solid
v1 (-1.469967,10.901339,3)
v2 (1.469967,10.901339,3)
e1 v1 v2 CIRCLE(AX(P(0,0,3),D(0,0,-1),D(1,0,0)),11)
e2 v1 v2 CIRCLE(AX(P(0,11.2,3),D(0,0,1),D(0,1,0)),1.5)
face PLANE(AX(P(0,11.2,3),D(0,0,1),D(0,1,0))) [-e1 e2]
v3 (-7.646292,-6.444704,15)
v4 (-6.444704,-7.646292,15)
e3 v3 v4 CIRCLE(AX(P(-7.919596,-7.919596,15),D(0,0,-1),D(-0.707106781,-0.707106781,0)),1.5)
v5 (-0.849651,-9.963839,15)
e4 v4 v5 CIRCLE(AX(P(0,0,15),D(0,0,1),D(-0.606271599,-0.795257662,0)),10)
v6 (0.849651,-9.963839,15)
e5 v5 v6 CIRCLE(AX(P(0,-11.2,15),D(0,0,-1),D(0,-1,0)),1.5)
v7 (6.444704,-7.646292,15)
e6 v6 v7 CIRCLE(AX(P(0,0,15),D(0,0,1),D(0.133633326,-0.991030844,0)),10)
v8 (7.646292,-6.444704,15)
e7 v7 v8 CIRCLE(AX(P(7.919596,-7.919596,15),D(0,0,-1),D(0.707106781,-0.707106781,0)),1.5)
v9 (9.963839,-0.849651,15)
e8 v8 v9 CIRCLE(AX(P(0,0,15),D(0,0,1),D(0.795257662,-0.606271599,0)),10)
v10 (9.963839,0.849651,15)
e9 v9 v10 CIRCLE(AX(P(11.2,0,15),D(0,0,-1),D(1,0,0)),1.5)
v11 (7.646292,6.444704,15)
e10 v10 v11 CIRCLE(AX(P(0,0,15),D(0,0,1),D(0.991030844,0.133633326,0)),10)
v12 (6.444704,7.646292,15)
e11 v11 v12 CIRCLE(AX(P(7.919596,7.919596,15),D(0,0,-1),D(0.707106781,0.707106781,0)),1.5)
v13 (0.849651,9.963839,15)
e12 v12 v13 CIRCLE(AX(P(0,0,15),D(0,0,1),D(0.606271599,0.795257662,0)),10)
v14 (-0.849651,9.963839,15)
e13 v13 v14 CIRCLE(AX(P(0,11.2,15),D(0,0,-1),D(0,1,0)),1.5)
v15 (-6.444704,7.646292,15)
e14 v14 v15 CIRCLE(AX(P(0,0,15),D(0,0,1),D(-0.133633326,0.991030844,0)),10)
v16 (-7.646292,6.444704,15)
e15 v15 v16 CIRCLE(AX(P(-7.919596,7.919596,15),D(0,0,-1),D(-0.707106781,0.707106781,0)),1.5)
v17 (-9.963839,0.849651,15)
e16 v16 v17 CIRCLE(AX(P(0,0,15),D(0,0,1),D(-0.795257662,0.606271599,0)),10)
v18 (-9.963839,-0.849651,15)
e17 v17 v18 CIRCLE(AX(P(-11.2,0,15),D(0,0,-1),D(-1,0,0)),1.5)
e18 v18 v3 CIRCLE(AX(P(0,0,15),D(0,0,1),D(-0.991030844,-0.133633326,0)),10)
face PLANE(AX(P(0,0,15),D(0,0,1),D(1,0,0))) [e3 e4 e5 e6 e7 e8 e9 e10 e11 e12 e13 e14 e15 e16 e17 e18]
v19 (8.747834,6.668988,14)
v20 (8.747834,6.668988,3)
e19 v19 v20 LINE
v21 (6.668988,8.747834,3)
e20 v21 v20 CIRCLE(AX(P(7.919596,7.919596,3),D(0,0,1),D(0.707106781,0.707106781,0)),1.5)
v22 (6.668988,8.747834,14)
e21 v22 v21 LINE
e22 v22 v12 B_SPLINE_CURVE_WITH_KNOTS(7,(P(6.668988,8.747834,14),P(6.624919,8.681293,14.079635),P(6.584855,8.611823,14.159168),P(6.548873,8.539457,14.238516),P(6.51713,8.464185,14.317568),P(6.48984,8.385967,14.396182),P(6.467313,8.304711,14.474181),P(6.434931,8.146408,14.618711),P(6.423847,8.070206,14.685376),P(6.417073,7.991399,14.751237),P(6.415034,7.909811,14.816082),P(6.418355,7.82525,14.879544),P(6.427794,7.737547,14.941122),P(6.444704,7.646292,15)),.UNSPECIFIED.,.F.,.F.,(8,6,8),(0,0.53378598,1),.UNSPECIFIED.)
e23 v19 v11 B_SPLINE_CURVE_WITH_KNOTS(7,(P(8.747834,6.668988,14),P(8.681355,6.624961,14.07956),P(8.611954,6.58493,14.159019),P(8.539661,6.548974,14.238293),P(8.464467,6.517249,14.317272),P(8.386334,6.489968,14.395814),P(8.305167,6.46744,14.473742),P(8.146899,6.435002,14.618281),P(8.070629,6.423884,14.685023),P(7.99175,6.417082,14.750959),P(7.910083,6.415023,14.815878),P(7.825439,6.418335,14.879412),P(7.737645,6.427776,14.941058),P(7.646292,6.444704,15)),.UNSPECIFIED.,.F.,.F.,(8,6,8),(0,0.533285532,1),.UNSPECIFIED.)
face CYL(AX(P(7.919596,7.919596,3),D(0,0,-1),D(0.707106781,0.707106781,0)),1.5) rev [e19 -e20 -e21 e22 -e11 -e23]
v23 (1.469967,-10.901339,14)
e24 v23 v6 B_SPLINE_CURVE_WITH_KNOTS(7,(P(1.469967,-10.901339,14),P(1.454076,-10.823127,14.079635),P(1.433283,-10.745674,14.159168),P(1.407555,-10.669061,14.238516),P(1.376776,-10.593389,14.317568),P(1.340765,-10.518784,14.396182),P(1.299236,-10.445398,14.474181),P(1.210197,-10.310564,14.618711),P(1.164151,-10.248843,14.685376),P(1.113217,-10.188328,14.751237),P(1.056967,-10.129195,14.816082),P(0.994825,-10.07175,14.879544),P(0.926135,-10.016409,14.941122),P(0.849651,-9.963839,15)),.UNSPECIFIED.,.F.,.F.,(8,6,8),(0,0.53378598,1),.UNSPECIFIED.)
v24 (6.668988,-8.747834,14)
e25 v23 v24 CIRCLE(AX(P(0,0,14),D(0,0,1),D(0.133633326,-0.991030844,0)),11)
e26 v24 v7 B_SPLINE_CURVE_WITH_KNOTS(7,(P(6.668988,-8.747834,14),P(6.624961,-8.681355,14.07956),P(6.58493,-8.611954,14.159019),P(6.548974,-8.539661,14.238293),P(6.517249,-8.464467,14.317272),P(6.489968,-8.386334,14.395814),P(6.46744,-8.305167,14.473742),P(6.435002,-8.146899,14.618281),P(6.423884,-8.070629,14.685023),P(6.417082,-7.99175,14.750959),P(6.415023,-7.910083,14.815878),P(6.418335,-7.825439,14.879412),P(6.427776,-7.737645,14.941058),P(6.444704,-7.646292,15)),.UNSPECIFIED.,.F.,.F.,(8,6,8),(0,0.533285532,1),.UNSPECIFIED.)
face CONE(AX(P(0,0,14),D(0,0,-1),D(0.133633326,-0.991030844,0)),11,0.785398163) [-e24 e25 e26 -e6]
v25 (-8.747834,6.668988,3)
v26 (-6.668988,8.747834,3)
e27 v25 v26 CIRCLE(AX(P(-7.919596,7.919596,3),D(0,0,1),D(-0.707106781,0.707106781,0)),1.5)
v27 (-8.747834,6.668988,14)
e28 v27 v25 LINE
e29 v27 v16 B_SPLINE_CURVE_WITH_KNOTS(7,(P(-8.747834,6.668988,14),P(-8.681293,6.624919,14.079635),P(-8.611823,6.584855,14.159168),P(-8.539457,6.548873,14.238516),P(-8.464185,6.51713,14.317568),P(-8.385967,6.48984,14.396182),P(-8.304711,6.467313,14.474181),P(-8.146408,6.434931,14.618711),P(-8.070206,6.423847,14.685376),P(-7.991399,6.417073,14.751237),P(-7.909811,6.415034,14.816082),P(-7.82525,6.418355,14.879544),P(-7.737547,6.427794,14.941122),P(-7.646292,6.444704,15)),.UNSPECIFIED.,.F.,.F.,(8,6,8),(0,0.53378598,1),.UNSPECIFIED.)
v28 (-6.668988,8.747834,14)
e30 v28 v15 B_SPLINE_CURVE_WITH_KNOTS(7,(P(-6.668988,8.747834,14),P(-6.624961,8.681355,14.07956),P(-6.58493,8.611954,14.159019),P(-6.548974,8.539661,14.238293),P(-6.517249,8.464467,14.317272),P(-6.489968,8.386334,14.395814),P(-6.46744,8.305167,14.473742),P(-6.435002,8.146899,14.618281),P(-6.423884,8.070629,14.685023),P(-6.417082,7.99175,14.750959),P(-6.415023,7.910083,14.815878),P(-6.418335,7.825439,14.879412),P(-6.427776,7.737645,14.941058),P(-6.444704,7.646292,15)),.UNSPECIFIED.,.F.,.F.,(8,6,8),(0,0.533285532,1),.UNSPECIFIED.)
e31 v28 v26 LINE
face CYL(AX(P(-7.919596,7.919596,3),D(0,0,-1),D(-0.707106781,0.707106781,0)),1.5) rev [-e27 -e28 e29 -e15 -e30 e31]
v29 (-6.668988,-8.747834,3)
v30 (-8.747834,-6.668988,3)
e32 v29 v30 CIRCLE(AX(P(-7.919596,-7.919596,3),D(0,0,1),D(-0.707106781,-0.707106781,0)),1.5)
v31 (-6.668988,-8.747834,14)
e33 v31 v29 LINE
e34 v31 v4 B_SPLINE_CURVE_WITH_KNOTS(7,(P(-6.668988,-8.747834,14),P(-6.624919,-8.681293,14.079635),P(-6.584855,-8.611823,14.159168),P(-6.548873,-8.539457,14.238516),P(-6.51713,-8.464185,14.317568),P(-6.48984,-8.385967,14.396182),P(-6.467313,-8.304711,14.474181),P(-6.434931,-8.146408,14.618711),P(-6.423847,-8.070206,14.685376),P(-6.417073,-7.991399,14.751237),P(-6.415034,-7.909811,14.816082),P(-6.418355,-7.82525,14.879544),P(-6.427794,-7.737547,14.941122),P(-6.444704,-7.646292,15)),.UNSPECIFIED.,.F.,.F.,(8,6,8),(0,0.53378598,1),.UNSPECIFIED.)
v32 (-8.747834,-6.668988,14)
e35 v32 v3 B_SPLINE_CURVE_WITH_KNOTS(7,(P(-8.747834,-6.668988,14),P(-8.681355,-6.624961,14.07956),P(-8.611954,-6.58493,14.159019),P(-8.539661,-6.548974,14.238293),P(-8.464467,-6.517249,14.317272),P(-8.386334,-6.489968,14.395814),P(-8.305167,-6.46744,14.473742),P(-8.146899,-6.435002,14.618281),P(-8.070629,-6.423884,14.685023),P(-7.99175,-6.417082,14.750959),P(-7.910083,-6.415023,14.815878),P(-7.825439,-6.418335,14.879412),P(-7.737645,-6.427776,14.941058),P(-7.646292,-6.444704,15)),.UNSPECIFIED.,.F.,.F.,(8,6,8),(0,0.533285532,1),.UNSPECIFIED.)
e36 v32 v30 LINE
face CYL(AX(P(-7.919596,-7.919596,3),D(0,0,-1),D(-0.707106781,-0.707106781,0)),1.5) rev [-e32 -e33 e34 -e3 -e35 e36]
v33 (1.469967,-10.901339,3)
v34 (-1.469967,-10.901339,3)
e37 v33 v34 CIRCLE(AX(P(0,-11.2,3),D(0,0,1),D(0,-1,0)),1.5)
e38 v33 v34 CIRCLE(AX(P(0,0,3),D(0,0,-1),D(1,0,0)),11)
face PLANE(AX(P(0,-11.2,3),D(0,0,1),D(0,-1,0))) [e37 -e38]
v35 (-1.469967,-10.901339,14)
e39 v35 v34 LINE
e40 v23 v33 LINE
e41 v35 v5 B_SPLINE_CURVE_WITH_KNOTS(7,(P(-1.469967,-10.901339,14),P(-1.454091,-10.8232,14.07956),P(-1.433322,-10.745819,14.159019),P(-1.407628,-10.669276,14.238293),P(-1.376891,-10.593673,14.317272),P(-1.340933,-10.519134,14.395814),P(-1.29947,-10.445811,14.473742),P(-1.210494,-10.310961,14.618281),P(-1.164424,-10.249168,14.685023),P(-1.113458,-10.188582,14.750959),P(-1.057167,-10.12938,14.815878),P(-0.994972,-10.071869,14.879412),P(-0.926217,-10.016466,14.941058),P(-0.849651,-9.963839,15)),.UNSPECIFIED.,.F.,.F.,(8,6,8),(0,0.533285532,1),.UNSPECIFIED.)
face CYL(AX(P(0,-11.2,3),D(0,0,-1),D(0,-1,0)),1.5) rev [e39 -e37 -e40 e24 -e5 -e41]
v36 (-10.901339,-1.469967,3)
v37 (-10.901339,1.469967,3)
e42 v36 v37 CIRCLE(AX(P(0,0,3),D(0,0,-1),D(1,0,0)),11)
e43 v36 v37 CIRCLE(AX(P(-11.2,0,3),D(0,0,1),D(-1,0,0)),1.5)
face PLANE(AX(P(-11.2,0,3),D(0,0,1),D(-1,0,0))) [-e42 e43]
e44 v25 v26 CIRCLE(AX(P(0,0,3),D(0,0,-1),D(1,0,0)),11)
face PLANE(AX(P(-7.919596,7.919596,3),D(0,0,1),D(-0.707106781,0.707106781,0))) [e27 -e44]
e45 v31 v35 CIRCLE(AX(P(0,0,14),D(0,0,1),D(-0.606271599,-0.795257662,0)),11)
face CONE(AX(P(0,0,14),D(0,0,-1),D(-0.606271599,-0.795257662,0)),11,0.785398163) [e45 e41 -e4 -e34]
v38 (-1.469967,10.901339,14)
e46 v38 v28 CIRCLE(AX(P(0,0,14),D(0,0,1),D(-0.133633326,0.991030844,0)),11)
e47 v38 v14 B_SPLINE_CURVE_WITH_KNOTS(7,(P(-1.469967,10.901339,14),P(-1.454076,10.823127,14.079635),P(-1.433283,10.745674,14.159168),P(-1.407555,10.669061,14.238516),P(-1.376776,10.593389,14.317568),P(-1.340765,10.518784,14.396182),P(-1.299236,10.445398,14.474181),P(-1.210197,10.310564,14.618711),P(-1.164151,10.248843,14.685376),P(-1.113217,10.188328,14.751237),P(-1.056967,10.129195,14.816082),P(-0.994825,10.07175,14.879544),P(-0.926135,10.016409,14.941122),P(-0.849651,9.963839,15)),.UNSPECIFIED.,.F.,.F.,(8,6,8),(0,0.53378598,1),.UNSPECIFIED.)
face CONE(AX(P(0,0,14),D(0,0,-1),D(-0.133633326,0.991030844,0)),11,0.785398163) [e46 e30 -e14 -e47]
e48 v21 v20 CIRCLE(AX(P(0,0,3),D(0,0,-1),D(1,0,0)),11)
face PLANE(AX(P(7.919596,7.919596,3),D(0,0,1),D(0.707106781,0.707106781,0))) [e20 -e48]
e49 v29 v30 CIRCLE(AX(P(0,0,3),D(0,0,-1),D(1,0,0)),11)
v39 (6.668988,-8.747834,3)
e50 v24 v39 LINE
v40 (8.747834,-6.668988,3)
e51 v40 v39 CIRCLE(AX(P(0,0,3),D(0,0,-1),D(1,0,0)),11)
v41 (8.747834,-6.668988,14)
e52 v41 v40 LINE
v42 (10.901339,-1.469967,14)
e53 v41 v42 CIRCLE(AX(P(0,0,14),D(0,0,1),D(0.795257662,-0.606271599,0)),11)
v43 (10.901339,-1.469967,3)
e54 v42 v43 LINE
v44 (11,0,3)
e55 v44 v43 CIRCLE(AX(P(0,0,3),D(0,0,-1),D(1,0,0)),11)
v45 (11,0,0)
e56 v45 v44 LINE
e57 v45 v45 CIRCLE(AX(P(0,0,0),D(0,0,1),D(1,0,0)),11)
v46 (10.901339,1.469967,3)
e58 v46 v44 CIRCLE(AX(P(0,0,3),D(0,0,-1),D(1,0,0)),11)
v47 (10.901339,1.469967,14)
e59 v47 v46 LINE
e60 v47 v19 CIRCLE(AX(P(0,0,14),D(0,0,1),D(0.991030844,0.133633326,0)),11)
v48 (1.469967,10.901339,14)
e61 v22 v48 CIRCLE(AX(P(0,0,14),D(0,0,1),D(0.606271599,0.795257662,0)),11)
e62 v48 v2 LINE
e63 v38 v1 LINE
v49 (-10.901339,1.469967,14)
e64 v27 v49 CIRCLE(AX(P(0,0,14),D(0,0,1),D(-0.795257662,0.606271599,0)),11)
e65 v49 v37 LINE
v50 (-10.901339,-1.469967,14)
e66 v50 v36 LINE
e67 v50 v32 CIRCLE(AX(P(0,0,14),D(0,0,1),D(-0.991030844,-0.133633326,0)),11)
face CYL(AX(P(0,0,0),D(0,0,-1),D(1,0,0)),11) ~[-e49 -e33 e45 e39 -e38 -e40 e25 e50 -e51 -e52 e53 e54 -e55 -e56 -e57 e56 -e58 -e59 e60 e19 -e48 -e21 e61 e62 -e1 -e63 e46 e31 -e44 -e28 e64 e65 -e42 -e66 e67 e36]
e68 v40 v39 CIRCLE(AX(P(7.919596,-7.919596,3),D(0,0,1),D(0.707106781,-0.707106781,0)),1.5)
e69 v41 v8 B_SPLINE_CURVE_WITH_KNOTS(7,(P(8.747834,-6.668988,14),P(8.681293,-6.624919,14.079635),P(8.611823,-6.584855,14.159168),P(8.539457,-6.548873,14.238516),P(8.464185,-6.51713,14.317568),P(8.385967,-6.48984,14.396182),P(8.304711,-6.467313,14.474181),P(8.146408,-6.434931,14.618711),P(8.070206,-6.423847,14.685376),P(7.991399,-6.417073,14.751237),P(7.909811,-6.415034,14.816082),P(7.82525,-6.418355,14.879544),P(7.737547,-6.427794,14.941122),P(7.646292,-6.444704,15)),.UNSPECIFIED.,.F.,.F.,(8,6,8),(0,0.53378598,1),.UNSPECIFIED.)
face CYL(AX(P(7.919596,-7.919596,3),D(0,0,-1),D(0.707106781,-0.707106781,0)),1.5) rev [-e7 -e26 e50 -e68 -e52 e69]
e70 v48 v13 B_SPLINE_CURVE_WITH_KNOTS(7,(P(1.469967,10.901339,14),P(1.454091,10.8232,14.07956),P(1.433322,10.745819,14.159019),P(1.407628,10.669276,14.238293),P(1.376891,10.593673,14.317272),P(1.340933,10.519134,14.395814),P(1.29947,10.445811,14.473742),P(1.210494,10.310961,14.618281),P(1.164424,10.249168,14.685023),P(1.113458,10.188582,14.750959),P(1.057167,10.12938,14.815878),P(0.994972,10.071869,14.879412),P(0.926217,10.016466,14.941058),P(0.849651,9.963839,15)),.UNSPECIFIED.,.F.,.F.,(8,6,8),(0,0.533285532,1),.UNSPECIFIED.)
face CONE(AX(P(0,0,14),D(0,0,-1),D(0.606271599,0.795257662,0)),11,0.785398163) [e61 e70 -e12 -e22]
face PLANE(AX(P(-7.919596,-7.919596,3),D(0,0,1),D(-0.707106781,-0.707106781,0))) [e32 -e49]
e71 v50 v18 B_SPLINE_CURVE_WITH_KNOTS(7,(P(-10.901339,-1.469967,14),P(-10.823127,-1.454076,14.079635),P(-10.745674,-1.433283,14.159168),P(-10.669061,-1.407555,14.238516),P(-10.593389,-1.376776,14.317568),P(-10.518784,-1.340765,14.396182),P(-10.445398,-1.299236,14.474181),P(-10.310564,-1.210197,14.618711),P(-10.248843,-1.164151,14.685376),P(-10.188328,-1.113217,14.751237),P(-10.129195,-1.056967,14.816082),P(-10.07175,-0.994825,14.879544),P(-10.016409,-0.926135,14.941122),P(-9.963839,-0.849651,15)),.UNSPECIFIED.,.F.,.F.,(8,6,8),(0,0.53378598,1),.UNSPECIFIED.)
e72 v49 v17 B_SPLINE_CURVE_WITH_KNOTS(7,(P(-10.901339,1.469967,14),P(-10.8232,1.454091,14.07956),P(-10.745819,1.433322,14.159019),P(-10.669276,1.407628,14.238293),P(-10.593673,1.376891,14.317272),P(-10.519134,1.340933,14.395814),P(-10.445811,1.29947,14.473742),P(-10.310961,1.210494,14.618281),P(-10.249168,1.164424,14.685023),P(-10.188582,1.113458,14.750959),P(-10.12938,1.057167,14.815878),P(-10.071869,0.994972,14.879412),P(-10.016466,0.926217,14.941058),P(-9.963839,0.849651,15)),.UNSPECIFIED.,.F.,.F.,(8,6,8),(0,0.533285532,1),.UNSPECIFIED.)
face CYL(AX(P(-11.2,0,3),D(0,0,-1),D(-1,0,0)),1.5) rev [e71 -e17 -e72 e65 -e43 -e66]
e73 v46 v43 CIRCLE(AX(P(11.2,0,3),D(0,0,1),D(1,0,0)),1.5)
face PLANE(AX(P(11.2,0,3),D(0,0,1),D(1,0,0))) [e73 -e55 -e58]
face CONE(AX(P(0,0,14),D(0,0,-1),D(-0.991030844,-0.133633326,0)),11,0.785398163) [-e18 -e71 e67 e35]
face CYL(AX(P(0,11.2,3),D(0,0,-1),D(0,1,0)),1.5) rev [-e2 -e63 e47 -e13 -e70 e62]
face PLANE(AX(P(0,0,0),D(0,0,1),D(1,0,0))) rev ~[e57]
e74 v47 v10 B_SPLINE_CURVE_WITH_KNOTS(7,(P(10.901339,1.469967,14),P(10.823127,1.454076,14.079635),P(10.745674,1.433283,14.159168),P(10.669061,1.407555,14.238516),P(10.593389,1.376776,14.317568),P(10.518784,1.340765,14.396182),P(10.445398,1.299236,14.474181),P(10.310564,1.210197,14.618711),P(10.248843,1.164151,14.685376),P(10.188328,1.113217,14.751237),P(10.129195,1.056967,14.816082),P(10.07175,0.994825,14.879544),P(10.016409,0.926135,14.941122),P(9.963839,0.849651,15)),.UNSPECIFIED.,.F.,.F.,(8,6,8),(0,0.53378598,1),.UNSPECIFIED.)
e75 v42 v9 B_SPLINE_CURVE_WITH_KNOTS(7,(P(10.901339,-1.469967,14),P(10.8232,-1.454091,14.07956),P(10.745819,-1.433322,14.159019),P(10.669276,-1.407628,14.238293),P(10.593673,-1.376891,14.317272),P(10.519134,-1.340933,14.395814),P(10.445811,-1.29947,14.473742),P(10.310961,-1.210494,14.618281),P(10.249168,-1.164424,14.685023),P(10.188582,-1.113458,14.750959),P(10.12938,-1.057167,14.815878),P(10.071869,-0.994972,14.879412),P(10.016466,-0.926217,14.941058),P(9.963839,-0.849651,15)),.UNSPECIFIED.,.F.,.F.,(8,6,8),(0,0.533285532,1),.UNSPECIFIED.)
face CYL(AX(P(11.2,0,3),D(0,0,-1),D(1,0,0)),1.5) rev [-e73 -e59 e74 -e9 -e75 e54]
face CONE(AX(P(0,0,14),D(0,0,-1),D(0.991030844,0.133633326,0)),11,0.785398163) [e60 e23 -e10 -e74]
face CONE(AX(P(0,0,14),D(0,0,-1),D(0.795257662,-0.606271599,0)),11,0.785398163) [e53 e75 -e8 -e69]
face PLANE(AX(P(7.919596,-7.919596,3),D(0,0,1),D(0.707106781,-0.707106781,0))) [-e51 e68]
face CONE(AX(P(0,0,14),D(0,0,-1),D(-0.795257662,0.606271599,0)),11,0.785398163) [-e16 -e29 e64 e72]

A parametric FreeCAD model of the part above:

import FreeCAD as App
import Part
import Sketcher
from FreeCAD import Vector
Q = App.Units.Quantity


def edges_at(feature, points):
    """Names of the edges that pass closest to the given points."""
    edges = feature.Shape.Edges
    near = lambda p: min(range(len(edges)), key=lambda i: edges[i].distToShape(Part.Vertex(*p))[0])
    return sorted({f"Edge{near(p) + 1}" for p in points})

doc = App.newDocument("Part")
body = doc.addObject("PartDesign::Body", "Body")

# Sketch on XY plane
sketch1 = body.newObject("Sketcher::SketchObject", "Sketch")
sketch1.AttachmentSupport = (doc.getObject("XY_Plane"), [""])
sketch1.MapMode = "FlatFace"
sketch1.AttachmentOffset = App.Placement(Vector(0, 0, 3), App.Rotation())
sketch1.addGeometry(Part.Circle(Vector(11.2, 0, 0), Vector(0, 0, 1), 1.5), False)
sketch1.addConstraint([
    Sketcher.Constraint("PointOnObject", 0, 3, -1),
    Sketcher.Constraint("Diameter", 0, Q("3 mm")),
    Sketcher.Constraint("DistanceX", -1, 1, 0, 3, Q("11.2 mm")),
])
pad1 = body.newObject("PartDesign::Pad", "Pad")
pad1.Profile = sketch1
pad1.Length = 20
body2 = doc.addObject("PartDesign::Body", "Body001")
body2.AllowCompound = True
doc.recompute()

body2.BaseFeature = body
doc.recompute()

body3 = doc.addObject("PartDesign::Body", "Body002")
body3.BaseFeature = body
body3.Placement = App.Placement(Vector(0, 0, 0), App.Rotation(Vector(0, 0, 1), 45))
boolean = body2.newObject("PartDesign::Boolean", "Boolean")
boolean.Type = "Fuse"
boolean.addObjects([body3])
doc.recompute()

body4 = doc.addObject("PartDesign::Body", "Body003")
body4.BaseFeature = body
body4.Placement = App.Placement(Vector(0, 0, 0), App.Rotation(Vector(0, 0, 1), 90))
boolean2 = body2.newObject("PartDesign::Boolean", "Boolean001")
boolean2.Type = "Fuse"
boolean2.addObjects([body4])
doc.recompute()

body5 = doc.addObject("PartDesign::Body", "Body004")
body5.BaseFeature = body
body5.Placement = App.Placement(Vector(0, 0, 0), App.Rotation(Vector(0, 0, 1), 135))
boolean3 = body2.newObject("PartDesign::Boolean", "Boolean002")
boolean3.Type = "Fuse"
boolean3.addObjects([body5])
doc.recompute()

body6 = doc.addObject("PartDesign::Body", "Body005")
body6.BaseFeature = body
body6.Placement = App.Placement(Vector(0, 0, 0), App.Rotation(Vector(0, 0, 1), 180))
boolean4 = body2.newObject("PartDesign::Boolean", "Boolean003")
boolean4.Type = "Fuse"
boolean4.addObjects([body6])
doc.recompute()

body7 = doc.addObject("PartDesign::Body", "Body006")
body7.BaseFeature = body
body7.Placement = App.Placement(Vector(0, 0, 0), App.Rotation(Vector(0, 0, 1), 225))
boolean5 = body2.newObject("PartDesign::Boolean", "Boolean004")
boolean5.Type = "Fuse"
boolean5.addObjects([body7])
doc.recompute()

body8 = doc.addObject("PartDesign::Body", "Body007")
body8.BaseFeature = body
body8.Placement = App.Placement(Vector(0, 0, 0), App.Rotation(Vector(0, 0, 1), 270))
boolean6 = body2.newObject("PartDesign::Boolean", "Boolean005")
boolean6.Type = "Fuse"
boolean6.addObjects([body8])
doc.recompute()

body.Placement = App.Placement(Vector(0, 0, 0), App.Rotation(Vector(0, 0, 1), 315))
boolean7 = body2.newObject("PartDesign::Boolean", "Boolean006")
boolean7.Type = "Fuse"
boolean7.addObjects([body])
body9 = doc.addObject("PartDesign::Body", "Body008")

# Sketch on XY plane
sketch2 = body9.newObject("Sketcher::SketchObject", "Sketch001")
sketch2.AttachmentSupport = (doc.getObject("XY_Plane008"), [""])
sketch2.MapMode = "FlatFace"
sketch2.addGeometry(Part.Circle(Vector(0, 0, 0), Vector(0, 0, 1), 11), False)
sketch2.addConstraint([
    Sketcher.Constraint("Coincident", 0, 3, -1, 1),
    Sketcher.Constraint("Diameter", 0, Q("22 mm")),
])
pad2 = body9.newObject("PartDesign::Pad", "Pad001")
pad2.Profile = sketch2
pad2.Length = 15
doc.recompute()

boolean8 = body9.newObject("PartDesign::Boolean", "Boolean007")
boolean8.Type = "Cut"
boolean8.addObjects([body2])
doc.recompute()

chamfer = body9.newObject("PartDesign::Chamfer", "Chamfer")
chamfer.Base = (boolean8, edges_at(boolean8, [(4.21, -10.163, 15)]))
chamfer.Size = 1
doc.recompute()

chamfer2 = body9.newObject("PartDesign::Chamfer", "Chamfer001")
chamfer2.Base = (chamfer, edges_at(chamfer, [(10.163, -4.21, 15)]))
chamfer2.Size = 1
doc.recompute()

chamfer3 = body9.newObject("PartDesign::Chamfer", "Chamfer002")
chamfer3.Base = (chamfer2, edges_at(chamfer2, [(10.163, 4.21, 15)]))
chamfer3.Size = 1
doc.recompute()

chamfer4 = body9.newObject("PartDesign::Chamfer", "Chamfer003")
chamfer4.Base = (chamfer3, edges_at(chamfer3, [(4.21, 10.163, 15)]))
chamfer4.Size = 1
doc.recompute()

chamfer5 = body9.newObject("PartDesign::Chamfer", "Chamfer004")
chamfer5.Base = (chamfer4, edges_at(chamfer4, [(-4.21, 10.163, 15)]))
chamfer5.Size = 1
doc.recompute()

chamfer6 = body9.newObject("PartDesign::Chamfer", "Chamfer005")
chamfer6.Base = (chamfer5, edges_at(chamfer5, [(-10.163, 4.21, 15)]))
chamfer6.Size = 1
doc.recompute()

chamfer7 = body9.newObject("PartDesign::Chamfer", "Chamfer006")
chamfer7.Base = (chamfer6, edges_at(chamfer6, [(-10.163, -4.21, 15)]))
chamfer7.Size = 1
doc.recompute()

chamfer8 = body9.newObject("PartDesign::Chamfer", "Chamfer007")
chamfer8.Base = (chamfer7, edges_at(chamfer7, [(-4.21, -10.163, 15)]))
chamfer8.Size = 1

doc.recompute()
